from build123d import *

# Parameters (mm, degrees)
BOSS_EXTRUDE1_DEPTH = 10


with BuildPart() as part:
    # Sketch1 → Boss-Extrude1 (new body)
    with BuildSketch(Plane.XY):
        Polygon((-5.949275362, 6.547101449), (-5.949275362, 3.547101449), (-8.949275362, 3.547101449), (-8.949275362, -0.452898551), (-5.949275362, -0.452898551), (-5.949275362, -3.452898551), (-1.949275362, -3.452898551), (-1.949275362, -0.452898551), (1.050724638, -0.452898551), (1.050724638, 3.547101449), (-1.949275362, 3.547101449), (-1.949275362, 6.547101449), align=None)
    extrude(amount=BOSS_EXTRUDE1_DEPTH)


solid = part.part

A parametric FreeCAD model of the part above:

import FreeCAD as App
import Part
import Sketcher
Q = App.Units.Quantity

doc = App.newDocument("Part")
body = doc.addObject("PartDesign::Body", "Body")

sketch1 = body.newObject("Sketcher::SketchObject", "Sketch")
sketch1.AttachmentSupport = (doc.getObject("XY_Plane"), [""])
sketch1.MapMode = "FlatFace"
sketch1.addGeometry([
    Part.LineSegment(App.Vector(-5.9, 6.5, 0), App.Vector(-5.9, 3.5, 0)),
    Part.LineSegment(App.Vector(-5.9, 3.5, 0), App.Vector(-8.9, 3.5, 0)),
    Part.LineSegment(App.Vector(-8.9, 3.5, 0), App.Vector(-8.9, -0.5, 0)),
    Part.LineSegment(App.Vector(-8.9, -0.5, 0), App.Vector(-5.9, -0.5, 0)),
    Part.LineSegment(App.Vector(-5.9, -0.5, 0), App.Vector(-5.9, -3.5, 0)),
    Part.LineSegment(App.Vector(-5.9, -3.5, 0), App.Vector(-1.9, -3.5, 0)),
    Part.LineSegment(App.Vector(-1.9, -3.5, 0), App.Vector(-1.9, -0.5, 0)),
    Part.LineSegment(App.Vector(-1.9, -0.5, 0), App.Vector(1.1, -0.5, 0)),
    Part.LineSegment(App.Vector(1.1, -0.5, 0), App.Vector(1.1, 3.5, 0)),
    Part.LineSegment(App.Vector(1.1, 3.5, 0), App.Vector(-1.9, 3.5, 0)),
    Part.LineSegment(App.Vector(-1.9, 3.5, 0), App.Vector(-1.9, 6.5, 0)),
    Part.LineSegment(App.Vector(-1.9, 6.5, 0), App.Vector(-5.9, 6.5, 0)),
], False)
sketch1.addConstraint([
    Sketcher.Constraint("Coincident", 0, 2, 1, 1),
    Sketcher.Constraint("Coincident", 1, 2, 2, 1),
    Sketcher.Constraint("Coincident", 2, 2, 3, 1),
    Sketcher.Constraint("Coincident", 3, 2, 4, 1),
    Sketcher.Constraint("Coincident", 4, 2, 5, 1),
    Sketcher.Constraint("Coincident", 5, 2, 6, 1),
    Sketcher.Constraint("Coincident", 6, 2, 7, 1),
    Sketcher.Constraint("Coincident", 7, 2, 8, 1),
    Sketcher.Constraint("Coincident", 8, 2, 9, 1),
    Sketcher.Constraint("Coincident", 9, 2, 10, 1),
    Sketcher.Constraint("Coincident", 10, 2, 11, 1),
    Sketcher.Constraint("Coincident", 11, 2, 0, 1),
    Sketcher.Constraint("Vertical", 0),
    Sketcher.Constraint("Horizontal", 1),
    Sketcher.Constraint("Vertical", 2),
    Sketcher.Constraint("Horizontal", 3),
    Sketcher.Constraint("Vertical", 4),
    Sketcher.Constraint("Horizontal", 5),
    Sketcher.Constraint("Vertical", 6),
    Sketcher.Constraint("Horizontal", 7),
    Sketcher.Constraint("Vertical", 8),
    Sketcher.Constraint("Horizontal", 9),
    Sketcher.Constraint("Vertical", 10),
    Sketcher.Constraint("Horizontal", 11),
    Sketcher.Constraint("Horizontal", 3, 2, 6, 2),
    Sketcher.Constraint("Horizontal", 1, 2, 8, 2),
    Sketcher.Constraint("Vertical", 0, 2, 3, 2),
    Sketcher.Constraint("Vertical", 6, 2, 9, 2),
    Sketcher.Constraint("Equal", 3, 7),
    Sketcher.Constraint("Equal", 9, 0),
    Sketcher.Constraint("Equal", 11, 2),
    Sketcher.Constraint("Equal", 0, 4),
    Sketcher.Constraint("DistanceX", 1, 2, 1, 1, Q("3 mm")),
    Sketcher.Constraint("DistanceX", 5, 1, 5, 2, Q("4 mm")),
    Sketcher.Constraint("DistanceY", -1, 1, 0, 2, Q("3.547101 mm")),
    Sketcher.Constraint("DistanceX", 0, 2, -1, 1, Q("5.949275 mm")),
])
pad1 = body.newObject("PartDesign::Pad", "Pad")
pad1.Profile = sketch1
pad1.Length = 10

doc.recompute()
